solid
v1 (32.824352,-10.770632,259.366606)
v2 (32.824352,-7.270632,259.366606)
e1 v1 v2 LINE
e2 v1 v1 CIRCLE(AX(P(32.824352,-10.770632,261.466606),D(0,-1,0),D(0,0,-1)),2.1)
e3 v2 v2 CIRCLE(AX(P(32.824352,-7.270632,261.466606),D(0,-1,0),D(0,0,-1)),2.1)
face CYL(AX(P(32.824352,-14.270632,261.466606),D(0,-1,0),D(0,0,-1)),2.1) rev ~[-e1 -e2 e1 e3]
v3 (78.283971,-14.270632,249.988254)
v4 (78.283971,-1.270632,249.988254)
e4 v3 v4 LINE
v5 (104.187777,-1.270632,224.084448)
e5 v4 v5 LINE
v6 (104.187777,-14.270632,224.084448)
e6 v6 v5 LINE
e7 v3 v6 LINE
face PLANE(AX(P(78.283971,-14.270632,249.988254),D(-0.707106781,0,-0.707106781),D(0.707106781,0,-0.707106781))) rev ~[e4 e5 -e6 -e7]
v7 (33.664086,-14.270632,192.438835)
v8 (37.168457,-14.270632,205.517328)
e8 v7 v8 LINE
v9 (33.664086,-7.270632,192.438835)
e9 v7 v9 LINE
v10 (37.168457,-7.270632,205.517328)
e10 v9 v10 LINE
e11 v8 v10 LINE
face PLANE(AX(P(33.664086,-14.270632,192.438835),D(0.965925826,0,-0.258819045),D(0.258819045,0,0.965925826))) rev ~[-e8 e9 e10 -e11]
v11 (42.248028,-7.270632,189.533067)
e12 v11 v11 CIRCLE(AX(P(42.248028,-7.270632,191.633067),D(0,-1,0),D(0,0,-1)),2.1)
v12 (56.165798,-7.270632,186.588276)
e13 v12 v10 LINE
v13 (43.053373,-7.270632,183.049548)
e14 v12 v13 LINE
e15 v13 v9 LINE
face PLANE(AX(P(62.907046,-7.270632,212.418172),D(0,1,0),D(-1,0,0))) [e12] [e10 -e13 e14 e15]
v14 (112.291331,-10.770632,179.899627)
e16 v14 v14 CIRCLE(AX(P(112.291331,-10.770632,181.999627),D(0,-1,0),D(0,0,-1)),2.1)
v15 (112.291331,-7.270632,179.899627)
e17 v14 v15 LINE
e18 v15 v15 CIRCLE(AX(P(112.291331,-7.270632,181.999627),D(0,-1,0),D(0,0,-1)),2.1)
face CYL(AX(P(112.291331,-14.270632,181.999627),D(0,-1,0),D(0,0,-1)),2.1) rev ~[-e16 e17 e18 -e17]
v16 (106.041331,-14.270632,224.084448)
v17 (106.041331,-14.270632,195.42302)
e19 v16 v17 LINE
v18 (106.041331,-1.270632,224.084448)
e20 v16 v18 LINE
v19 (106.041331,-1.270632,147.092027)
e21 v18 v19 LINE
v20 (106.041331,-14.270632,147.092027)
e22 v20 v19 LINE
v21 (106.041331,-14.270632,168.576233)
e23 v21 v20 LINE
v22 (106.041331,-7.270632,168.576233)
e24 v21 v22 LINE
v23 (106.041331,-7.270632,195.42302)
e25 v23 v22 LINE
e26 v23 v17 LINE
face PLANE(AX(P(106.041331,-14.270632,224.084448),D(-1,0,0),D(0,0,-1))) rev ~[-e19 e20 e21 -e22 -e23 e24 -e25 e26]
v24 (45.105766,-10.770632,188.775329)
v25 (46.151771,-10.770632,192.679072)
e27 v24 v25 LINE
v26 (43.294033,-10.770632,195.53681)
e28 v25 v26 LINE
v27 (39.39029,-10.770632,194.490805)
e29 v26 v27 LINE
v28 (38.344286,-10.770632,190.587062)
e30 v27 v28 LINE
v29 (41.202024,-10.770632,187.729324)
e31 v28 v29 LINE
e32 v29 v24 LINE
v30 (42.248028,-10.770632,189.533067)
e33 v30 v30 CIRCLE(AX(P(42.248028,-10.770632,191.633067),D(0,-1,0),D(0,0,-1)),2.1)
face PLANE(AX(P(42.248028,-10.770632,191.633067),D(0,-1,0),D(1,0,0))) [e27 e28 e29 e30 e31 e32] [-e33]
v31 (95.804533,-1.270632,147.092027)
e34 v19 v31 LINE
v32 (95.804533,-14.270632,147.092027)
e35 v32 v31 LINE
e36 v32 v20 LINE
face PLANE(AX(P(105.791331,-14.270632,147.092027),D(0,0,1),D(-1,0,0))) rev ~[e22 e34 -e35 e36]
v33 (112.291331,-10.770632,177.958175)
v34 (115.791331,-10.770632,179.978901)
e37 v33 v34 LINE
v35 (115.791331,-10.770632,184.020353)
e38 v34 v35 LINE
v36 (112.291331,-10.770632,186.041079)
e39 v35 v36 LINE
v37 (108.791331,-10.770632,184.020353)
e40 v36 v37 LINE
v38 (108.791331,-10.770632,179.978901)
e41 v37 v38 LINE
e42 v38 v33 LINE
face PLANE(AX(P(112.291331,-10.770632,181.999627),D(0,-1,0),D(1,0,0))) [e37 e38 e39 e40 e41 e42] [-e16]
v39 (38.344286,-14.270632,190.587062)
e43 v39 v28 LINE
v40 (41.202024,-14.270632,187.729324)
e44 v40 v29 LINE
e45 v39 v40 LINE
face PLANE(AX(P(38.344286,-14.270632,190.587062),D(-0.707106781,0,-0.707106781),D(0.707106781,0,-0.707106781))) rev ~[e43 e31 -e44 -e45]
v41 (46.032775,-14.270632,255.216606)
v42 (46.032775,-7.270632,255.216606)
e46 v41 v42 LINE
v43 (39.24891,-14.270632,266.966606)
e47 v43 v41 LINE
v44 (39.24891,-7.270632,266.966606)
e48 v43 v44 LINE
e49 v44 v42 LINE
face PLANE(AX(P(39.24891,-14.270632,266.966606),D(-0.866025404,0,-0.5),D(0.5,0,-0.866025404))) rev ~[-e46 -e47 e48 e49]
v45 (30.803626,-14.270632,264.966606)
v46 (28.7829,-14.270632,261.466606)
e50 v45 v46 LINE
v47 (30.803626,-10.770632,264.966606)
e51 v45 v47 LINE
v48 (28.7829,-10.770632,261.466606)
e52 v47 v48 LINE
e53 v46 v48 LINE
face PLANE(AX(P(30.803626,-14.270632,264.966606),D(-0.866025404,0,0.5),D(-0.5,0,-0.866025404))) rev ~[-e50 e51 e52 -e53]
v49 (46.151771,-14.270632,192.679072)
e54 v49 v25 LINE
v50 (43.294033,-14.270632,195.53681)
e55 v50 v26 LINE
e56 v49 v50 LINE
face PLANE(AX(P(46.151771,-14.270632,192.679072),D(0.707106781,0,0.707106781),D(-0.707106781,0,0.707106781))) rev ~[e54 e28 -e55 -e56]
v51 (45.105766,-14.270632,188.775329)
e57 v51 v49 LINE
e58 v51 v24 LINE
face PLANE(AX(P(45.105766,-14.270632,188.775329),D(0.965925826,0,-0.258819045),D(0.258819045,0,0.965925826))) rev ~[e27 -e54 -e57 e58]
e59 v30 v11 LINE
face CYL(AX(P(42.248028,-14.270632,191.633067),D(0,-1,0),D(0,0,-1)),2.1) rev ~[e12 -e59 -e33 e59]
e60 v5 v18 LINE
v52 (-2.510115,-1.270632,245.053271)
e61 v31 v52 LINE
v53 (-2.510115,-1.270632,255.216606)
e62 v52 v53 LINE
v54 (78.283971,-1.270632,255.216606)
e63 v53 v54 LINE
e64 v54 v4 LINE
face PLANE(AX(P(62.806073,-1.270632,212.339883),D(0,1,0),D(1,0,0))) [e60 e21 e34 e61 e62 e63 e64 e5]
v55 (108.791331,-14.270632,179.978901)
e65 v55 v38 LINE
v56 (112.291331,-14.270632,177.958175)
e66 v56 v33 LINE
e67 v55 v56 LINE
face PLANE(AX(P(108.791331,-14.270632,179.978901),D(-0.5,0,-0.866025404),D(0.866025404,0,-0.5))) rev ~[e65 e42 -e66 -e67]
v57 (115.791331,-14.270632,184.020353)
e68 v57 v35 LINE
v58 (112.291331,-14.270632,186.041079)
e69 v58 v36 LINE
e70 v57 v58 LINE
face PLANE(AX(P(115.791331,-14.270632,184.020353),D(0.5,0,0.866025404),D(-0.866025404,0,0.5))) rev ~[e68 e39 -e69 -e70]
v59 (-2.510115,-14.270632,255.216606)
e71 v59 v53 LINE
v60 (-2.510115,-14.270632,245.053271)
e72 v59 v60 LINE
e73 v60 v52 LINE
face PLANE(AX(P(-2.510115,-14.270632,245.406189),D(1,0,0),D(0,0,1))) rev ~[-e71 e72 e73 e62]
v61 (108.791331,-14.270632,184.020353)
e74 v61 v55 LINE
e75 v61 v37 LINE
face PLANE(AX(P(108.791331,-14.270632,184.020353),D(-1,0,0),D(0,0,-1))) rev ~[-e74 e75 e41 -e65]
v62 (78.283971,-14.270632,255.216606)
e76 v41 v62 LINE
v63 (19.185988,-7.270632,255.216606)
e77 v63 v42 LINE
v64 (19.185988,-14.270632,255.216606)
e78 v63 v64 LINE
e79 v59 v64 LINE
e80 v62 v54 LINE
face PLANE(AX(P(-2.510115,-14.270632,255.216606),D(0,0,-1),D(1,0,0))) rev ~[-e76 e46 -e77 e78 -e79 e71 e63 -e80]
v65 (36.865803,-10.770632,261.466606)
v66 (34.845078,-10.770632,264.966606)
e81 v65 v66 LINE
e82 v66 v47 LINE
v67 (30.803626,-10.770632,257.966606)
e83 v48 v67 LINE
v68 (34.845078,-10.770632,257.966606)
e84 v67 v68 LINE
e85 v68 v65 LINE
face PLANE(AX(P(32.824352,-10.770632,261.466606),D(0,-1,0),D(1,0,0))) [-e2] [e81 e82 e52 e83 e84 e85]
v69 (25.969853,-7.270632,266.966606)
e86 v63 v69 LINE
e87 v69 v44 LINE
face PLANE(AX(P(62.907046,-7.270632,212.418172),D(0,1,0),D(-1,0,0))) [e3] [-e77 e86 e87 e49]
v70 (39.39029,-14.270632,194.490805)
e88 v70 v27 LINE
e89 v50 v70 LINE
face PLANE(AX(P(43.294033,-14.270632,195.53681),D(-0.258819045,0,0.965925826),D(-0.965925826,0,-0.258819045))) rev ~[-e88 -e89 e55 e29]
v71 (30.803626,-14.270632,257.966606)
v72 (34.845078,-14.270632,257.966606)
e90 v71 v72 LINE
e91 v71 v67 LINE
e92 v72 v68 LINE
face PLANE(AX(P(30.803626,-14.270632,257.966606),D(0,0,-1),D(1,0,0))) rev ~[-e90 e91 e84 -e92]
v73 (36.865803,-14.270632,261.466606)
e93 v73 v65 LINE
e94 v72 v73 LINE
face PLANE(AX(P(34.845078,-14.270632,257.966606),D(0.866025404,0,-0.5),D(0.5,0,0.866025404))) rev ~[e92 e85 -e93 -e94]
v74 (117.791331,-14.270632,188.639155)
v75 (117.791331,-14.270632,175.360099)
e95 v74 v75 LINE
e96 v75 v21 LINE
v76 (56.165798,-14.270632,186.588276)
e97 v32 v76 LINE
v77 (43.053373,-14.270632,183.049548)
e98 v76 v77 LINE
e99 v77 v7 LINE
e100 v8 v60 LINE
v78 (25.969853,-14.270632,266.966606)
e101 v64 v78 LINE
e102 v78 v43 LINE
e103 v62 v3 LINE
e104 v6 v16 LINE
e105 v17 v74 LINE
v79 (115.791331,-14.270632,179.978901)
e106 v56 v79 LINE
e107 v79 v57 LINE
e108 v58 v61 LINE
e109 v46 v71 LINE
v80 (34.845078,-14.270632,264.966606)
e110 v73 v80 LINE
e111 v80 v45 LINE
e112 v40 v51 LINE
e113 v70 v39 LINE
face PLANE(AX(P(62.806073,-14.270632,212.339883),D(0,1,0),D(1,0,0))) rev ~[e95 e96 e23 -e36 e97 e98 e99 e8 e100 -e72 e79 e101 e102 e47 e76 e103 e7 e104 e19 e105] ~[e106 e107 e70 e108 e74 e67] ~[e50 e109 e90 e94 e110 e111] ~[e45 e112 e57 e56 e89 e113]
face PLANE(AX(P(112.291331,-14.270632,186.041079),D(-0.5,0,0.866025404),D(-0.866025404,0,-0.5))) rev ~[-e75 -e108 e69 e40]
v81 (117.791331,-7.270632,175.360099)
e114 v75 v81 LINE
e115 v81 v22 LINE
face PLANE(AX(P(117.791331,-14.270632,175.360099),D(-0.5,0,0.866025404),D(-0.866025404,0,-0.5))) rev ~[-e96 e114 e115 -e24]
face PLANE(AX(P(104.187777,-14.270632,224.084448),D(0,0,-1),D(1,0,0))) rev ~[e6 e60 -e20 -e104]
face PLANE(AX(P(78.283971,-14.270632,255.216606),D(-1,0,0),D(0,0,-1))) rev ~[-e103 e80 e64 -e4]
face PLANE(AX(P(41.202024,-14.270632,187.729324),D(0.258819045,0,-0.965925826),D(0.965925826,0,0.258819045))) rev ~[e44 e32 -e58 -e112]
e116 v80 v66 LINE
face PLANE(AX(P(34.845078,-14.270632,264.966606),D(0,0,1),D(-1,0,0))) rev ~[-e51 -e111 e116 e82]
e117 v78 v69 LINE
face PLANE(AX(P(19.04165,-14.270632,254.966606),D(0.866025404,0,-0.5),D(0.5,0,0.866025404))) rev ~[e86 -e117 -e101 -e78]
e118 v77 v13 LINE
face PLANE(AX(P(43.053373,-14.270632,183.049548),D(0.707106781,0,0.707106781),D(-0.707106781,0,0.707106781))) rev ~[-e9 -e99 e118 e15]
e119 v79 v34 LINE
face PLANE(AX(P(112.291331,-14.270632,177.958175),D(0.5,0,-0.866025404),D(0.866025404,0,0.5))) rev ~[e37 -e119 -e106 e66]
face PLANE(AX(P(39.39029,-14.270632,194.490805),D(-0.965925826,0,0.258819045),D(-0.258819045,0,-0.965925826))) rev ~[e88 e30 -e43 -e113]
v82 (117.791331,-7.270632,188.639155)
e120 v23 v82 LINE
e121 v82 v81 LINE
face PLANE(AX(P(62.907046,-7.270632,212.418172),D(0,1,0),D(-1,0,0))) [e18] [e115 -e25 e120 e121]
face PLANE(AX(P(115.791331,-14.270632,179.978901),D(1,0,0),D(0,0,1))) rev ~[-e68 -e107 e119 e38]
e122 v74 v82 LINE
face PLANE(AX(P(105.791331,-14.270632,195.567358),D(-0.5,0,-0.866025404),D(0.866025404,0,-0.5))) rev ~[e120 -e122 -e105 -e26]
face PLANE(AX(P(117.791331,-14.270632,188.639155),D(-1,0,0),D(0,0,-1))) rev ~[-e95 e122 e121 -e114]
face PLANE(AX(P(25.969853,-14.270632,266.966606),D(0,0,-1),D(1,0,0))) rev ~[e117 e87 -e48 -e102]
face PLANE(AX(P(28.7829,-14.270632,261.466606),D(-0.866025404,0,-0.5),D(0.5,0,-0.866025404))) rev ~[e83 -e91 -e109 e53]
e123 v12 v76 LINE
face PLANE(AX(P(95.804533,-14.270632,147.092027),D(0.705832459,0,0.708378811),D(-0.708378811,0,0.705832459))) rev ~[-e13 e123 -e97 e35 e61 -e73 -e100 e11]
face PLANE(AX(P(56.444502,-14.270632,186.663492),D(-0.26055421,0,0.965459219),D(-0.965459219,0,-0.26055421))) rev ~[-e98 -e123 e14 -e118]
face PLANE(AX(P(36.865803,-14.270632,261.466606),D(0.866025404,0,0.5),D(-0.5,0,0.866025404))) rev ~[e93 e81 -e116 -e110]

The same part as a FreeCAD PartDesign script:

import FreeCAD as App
import Part
import Sketcher
Q = App.Units.Quantity


def add_polygon(sketch, points):
    """Adds a closed chain of lines whose ends are joined by coincident constraints."""
    first, n = sketch.GeometryCount, len(points)
    for a, b in zip(points, points[1:] + points[:1]):
        sketch.addGeometry(Part.LineSegment(App.Vector(*a, 0), App.Vector(*b, 0)), False)
    for i in range(n):
        sketch.addConstraint(Sketcher.Constraint("Coincident", first + i, 2, first + (i + 1) % n, 1))

doc = App.newDocument("Part")
body = doc.addObject("PartDesign::Body", "Body")

sketch1 = doc.addObject("Sketcher::SketchObject", "Sketch")
body.addObject(sketch1)
sketch1.AttachmentSupport = (doc.XZ_Plane, [""])
sketch1.MapMode = "FlatFace"
sketch1.AttachmentOffset = App.Placement(App.Vector(0, 0, 14.270632), App.Rotation())
add_polygon(sketch1, [(-2.510115, 245.053271), (95.804533, 147.092027), (106.041331, 147.092027), (106.041331, 224.084448), (104.187777, 224.084448), (78.283971, 249.988254), (78.283971, 255.216606), (-2.510115, 255.216606)])
sketch1.addConstraint([
    Sketcher.Constraint("Horizontal", 1),
    Sketcher.Constraint("Vertical", 2),
    Sketcher.Constraint("Horizontal", 3),
    Sketcher.Constraint("Vertical", 5),
    Sketcher.Constraint("Horizontal", 6),
    Sketcher.Constraint("Vertical", 7),
    Sketcher.Constraint("Angle", 4, Q("135 deg")),
    Sketcher.Constraint("DistanceY", 2, 1, 2, 2, Q("76.992421 mm")),
    Sketcher.Constraint("DistanceY", 5, 1, 5, 2, Q("5.228352 mm")),
    Sketcher.Constraint("Distance", 0, Q("138.788239 mm")),
    Sketcher.Constraint("DistanceX", 1, 1, 1, 2, Q("10.236797 mm")),
    Sketcher.Constraint("DistanceX", 3, 2, 3, 1, Q("1.853553 mm")),
    Sketcher.Constraint("DistanceX", 6, 2, 6, 1, Q("80.794086 mm")),
    Sketcher.Constraint("DistanceY", 7, 2, 7, 1, Q("10.163335 mm")),
    Sketcher.Constraint("DistanceX", -1, 1, 1, 2, Q("106.041331 mm")),
    Sketcher.Constraint("DistanceY", -1, 1, 2, 2, Q("224.084448 mm")),
])
pad1 = doc.addObject("PartDesign::Pad", "Pad")
body.addObject(pad1)
pad1.Profile = sketch1
pad1.Length = 13
pad1.Reversed = True

sketch2 = doc.addObject("Sketcher::SketchObject", "Sketch001")
body.addObject(sketch2)
sketch2.AttachmentSupport = (doc.XZ_Plane, [""])
sketch2.MapMode = "FlatFace"
sketch2.AttachmentOffset = App.Placement(App.Vector(0, 0, 14.270632), App.Rotation())
add_polygon(sketch2, [(-2.510115, 245.406189), (37.243095, 205.795878), (33.664086, 192.438835), (43.053373, 183.049548), (56.444502, 186.663492), (96.158725, 147.092027), (105.791331, 147.092027), (105.791331, 168.431895), (117.791331, 175.360099), (117.791331, 188.639155), (105.791331, 195.567358), (105.791331, 223.834448), (104.084224, 223.834448), (78.033971, 249.884701), (78.033971, 254.966606), (46.177113, 254.966606), (39.24891, 266.966606), (25.969853, 266.966606), (19.04165, 254.966606), (-2.510115, 254.966606)])
sketch2.addConstraint([
    Sketcher.Constraint("Horizontal", 5),
    Sketcher.Constraint("Vertical", 6),
    Sketcher.Constraint("Vertical", 8),
    Sketcher.Constraint("Vertical", 10),
    Sketcher.Constraint("Horizontal", 11),
    Sketcher.Constraint("Vertical", 13),
    Sketcher.Constraint("Horizontal", 14),
    Sketcher.Constraint("Horizontal", 16),
    Sketcher.Constraint("Horizontal", 18),
    Sketcher.Constraint("Vertical", 19),
    Sketcher.Constraint("Parallel", 0, 4),
    Sketcher.Constraint("Parallel", 2, 12),
    Sketcher.Constraint("Perpendicular", 7, 15),
    Sketcher.Constraint("Perpendicular", 9, 17),
    Sketcher.Constraint("Horizontal", 14, 2, 17, 2),
    Sketcher.Constraint("Vertical", 6, 2, 9, 2),
    Sketcher.Constraint("Equal", 16, 8),
    Sketcher.Constraint("Equal", 7, 9),
    Sketcher.Constraint("Equal", 9, 15),
    Sketcher.Constraint("Angle", 1, Q("-105 deg")),
    Sketcher.Constraint("Angle", 2, Q("-45 deg")),
    Sketcher.Constraint("Angle", 7, Q("30 deg")),
    Sketcher.Constraint("DistanceX", 6, 2, 7, 2, Q("12 mm")),
    Sketcher.Constraint("DistanceX", 14, 2, 14, 1, Q("31.856859 mm")),
    Sketcher.Constraint("DistanceY", 6, 1, 6, 2, Q("21.339869 mm")),
    Sketcher.Constraint("DistanceY", 10, 1, 10, 2, Q("28.26709 mm")),
    Sketcher.Constraint("DistanceY", -1, 1, 7, 2, Q("175.360099 mm")),
    Sketcher.Constraint("DistanceY", -1, 1, 12, 2, Q("249.884701 mm")),
    Sketcher.Constraint("Distance", 1, Q("13.828228 mm")),
    Sketcher.Constraint("Distance", 4, Q("56.063538 mm")),
    Sketcher.Constraint("Distance", 12, Q("36.84062 mm")),
    Sketcher.Constraint("DistanceX", 5, 1, 5, 2, Q("9.632606 mm")),
    Sketcher.Constraint("DistanceX", 11, 2, 11, 1, Q("1.707107 mm")),
    Sketcher.Constraint("DistanceX", 18, 2, 18, 1, Q("21.551765 mm")),
    Sketcher.Constraint("DistanceY", 13, 1, 13, 2, Q("5.081905 mm")),
    Sketcher.Constraint("DistanceY", 19, 2, 19, 1, Q("9.560416 mm")),
    Sketcher.Constraint("DistanceY", -1, 1, 2, 2, Q("183.049548 mm")),
    Sketcher.Constraint("DistanceY", -1, 1, 3, 2, Q("186.663492 mm")),
    Sketcher.Constraint("DistanceX", -1, 1, 5, 2, Q("105.791331 mm")),
    Sketcher.Constraint("DistanceX", 0, 2, 2, 2, Q("5.810278 mm")),
])
pad2 = doc.addObject("PartDesign::Pad", "Pad001")
body.addObject(pad2)
pad2.Profile = sketch2
pad2.Length = 7
pad2.Reversed = True

sketch3 = doc.addObject("Sketcher::SketchObject", "Sketch002")
body.addObject(sketch3)
sketch3.AttachmentSupport = (doc.XZ_Plane, [""])
sketch3.MapMode = "FlatFace"
sketch3.AttachmentOffset = App.Placement(App.Vector(0, 0, 14.270632), App.Rotation())
sketch3.addGeometry([
    Part.Circle(App.Vector(42.248028, 191.633067, 0), App.Vector(0, 0, 1), 2.1),
    Part.Circle(App.Vector(32.824352, 261.466606, 0), App.Vector(0, 0, 1), 2.1),
    Part.Circle(App.Vector(112.291331, 181.999627, 0), App.Vector(0, 0, 1), 2.1),
], False)
sketch3.addConstraint([
    Sketcher.Constraint("Equal", 0, 1),
    Sketcher.Constraint("Equal", 1, 2),
    Sketcher.Constraint("Diameter", 0, Q("4.2 mm")),
    Sketcher.Constraint("DistanceX", -1, 1, 0, 3, Q("42.248028 mm")),
    Sketcher.Constraint("DistanceX", -1, 1, 1, 3, Q("32.824352 mm")),
    Sketcher.Constraint("DistanceX", -1, 1, 2, 3, Q("112.291331 mm")),
    Sketcher.Constraint("DistanceY", 0, 3, 1, 3, Q("69.833539 mm")),
    Sketcher.Constraint("DistanceY", 2, 3, 0, 3, Q("9.63344 mm")),
    Sketcher.Constraint("DistanceY", -1, 1, 0, 3, Q("191.633067 mm")),
])
pocket1 = doc.addObject("PartDesign::Pocket", "Pocket")
body.addObject(pocket1)
pocket1.Profile = sketch3
pocket1.Type = "ThroughAll"

sketch4 = doc.addObject("Sketcher::SketchObject", "Sketch003")
body.addObject(sketch4)
sketch4.AttachmentSupport = (doc.XZ_Plane, [""])
sketch4.MapMode = "FlatFace"
sketch4.AttachmentOffset = App.Placement(App.Vector(0, 0, 14.270632), App.Rotation())
add_polygon(sketch4, [(36.865803, 261.466606), (34.845078, 264.966606), (30.803626, 264.966606), (28.7829, 261.466606), (30.803626, 257.966606), (34.845078, 257.966606)])
add_polygon(sketch4, [(46.151771, 192.679072), (43.294033, 195.53681), (39.39029, 194.490805), (38.344286, 190.587062), (41.202024, 187.729324), (45.105766, 188.775329)])
add_polygon(sketch4, [(108.791331, 184.020353), (108.791331, 179.978901), (112.291331, 177.958175), (115.791331, 179.978901), (115.791331, 184.020353), (112.291331, 186.041079)])
sketch4.addConstraint([
    Sketcher.Constraint("Horizontal", 1),
    Sketcher.Constraint("Horizontal", 4),
    Sketcher.Constraint("Vertical", 12),
    Sketcher.Constraint("Vertical", 15),
    Sketcher.Constraint("Parallel", 0, 3),
    Sketcher.Constraint("Parallel", 2, 5),
    Sketcher.Constraint("Parallel", 6, 9),
    Sketcher.Constraint("Parallel", 7, 10),
    Sketcher.Constraint("Parallel", 8, 11),
    Sketcher.Constraint("Perpendicular", 5, 13),
    Sketcher.Constraint("Perpendicular", 3, 14),
    Sketcher.Constraint("Parallel", 13, 16),
    Sketcher.Constraint("Parallel", 14, 17),
    Sketcher.Constraint("Horizontal", 2, 2, 5, 2),
    Sketcher.Constraint("Horizontal", 12, 2, 14, 2),
    Sketcher.Constraint("Horizontal", 15, 2, 17, 2),
    Sketcher.Constraint("Vertical", 1, 2, 3, 2),
    Sketcher.Constraint("Vertical", 0, 2, 4, 2),
    Sketcher.Constraint("Equal", 4, 12),
    Sketcher.Constraint("Equal", 5, 6),
    Sketcher.Constraint("Equal", 6, 7),
    Sketcher.Constraint("Equal", 7, 8),
    Sketcher.Constraint("Equal", 8, 9),
    Sketcher.Constraint("Equal", 11, 13),
    Sketcher.Constraint("Angle", 0, Q("120 deg")),
    Sketcher.Constraint("Angle", 6, Q("135 deg")),
    Sketcher.Constraint("Angle", 7, Q("-165 deg")),
    Sketcher.Constraint("Angle", 8, Q("-105 deg")),
    Sketcher.Constraint("DistanceY", 3, 2, 1, 2, Q("7 mm")),
    Sketcher.Constraint("DistanceX", 1, 2, 1, 1, Q("4.041452 mm")),
    Sketcher.Constraint("DistanceX", -1, 1, 2, 2, Q("28.7829 mm")),
    Sketcher.Constraint("DistanceY", -1, 1, 12, 2, Q("179.978901 mm")),
    Sketcher.Constraint("DistanceY", 7, 2, 4, 2, Q("63.475801 mm")),
    Sketcher.Constraint("DistanceX", 3, 2, 9, 2, Q("10.398398 mm")),
    Sketcher.Constraint("DistanceY", -1, 1, 6, 2, Q("195.53681 mm")),
    Sketcher.Constraint("DistanceX", -1, 1, 12, 2, Q("108.791331 mm")),
])
pocket2 = doc.addObject("PartDesign::Pocket", "Pocket001")
body.addObject(pocket2)
pocket2.Profile = sketch4
pocket2.Length = 3.5

doc.recompute()
